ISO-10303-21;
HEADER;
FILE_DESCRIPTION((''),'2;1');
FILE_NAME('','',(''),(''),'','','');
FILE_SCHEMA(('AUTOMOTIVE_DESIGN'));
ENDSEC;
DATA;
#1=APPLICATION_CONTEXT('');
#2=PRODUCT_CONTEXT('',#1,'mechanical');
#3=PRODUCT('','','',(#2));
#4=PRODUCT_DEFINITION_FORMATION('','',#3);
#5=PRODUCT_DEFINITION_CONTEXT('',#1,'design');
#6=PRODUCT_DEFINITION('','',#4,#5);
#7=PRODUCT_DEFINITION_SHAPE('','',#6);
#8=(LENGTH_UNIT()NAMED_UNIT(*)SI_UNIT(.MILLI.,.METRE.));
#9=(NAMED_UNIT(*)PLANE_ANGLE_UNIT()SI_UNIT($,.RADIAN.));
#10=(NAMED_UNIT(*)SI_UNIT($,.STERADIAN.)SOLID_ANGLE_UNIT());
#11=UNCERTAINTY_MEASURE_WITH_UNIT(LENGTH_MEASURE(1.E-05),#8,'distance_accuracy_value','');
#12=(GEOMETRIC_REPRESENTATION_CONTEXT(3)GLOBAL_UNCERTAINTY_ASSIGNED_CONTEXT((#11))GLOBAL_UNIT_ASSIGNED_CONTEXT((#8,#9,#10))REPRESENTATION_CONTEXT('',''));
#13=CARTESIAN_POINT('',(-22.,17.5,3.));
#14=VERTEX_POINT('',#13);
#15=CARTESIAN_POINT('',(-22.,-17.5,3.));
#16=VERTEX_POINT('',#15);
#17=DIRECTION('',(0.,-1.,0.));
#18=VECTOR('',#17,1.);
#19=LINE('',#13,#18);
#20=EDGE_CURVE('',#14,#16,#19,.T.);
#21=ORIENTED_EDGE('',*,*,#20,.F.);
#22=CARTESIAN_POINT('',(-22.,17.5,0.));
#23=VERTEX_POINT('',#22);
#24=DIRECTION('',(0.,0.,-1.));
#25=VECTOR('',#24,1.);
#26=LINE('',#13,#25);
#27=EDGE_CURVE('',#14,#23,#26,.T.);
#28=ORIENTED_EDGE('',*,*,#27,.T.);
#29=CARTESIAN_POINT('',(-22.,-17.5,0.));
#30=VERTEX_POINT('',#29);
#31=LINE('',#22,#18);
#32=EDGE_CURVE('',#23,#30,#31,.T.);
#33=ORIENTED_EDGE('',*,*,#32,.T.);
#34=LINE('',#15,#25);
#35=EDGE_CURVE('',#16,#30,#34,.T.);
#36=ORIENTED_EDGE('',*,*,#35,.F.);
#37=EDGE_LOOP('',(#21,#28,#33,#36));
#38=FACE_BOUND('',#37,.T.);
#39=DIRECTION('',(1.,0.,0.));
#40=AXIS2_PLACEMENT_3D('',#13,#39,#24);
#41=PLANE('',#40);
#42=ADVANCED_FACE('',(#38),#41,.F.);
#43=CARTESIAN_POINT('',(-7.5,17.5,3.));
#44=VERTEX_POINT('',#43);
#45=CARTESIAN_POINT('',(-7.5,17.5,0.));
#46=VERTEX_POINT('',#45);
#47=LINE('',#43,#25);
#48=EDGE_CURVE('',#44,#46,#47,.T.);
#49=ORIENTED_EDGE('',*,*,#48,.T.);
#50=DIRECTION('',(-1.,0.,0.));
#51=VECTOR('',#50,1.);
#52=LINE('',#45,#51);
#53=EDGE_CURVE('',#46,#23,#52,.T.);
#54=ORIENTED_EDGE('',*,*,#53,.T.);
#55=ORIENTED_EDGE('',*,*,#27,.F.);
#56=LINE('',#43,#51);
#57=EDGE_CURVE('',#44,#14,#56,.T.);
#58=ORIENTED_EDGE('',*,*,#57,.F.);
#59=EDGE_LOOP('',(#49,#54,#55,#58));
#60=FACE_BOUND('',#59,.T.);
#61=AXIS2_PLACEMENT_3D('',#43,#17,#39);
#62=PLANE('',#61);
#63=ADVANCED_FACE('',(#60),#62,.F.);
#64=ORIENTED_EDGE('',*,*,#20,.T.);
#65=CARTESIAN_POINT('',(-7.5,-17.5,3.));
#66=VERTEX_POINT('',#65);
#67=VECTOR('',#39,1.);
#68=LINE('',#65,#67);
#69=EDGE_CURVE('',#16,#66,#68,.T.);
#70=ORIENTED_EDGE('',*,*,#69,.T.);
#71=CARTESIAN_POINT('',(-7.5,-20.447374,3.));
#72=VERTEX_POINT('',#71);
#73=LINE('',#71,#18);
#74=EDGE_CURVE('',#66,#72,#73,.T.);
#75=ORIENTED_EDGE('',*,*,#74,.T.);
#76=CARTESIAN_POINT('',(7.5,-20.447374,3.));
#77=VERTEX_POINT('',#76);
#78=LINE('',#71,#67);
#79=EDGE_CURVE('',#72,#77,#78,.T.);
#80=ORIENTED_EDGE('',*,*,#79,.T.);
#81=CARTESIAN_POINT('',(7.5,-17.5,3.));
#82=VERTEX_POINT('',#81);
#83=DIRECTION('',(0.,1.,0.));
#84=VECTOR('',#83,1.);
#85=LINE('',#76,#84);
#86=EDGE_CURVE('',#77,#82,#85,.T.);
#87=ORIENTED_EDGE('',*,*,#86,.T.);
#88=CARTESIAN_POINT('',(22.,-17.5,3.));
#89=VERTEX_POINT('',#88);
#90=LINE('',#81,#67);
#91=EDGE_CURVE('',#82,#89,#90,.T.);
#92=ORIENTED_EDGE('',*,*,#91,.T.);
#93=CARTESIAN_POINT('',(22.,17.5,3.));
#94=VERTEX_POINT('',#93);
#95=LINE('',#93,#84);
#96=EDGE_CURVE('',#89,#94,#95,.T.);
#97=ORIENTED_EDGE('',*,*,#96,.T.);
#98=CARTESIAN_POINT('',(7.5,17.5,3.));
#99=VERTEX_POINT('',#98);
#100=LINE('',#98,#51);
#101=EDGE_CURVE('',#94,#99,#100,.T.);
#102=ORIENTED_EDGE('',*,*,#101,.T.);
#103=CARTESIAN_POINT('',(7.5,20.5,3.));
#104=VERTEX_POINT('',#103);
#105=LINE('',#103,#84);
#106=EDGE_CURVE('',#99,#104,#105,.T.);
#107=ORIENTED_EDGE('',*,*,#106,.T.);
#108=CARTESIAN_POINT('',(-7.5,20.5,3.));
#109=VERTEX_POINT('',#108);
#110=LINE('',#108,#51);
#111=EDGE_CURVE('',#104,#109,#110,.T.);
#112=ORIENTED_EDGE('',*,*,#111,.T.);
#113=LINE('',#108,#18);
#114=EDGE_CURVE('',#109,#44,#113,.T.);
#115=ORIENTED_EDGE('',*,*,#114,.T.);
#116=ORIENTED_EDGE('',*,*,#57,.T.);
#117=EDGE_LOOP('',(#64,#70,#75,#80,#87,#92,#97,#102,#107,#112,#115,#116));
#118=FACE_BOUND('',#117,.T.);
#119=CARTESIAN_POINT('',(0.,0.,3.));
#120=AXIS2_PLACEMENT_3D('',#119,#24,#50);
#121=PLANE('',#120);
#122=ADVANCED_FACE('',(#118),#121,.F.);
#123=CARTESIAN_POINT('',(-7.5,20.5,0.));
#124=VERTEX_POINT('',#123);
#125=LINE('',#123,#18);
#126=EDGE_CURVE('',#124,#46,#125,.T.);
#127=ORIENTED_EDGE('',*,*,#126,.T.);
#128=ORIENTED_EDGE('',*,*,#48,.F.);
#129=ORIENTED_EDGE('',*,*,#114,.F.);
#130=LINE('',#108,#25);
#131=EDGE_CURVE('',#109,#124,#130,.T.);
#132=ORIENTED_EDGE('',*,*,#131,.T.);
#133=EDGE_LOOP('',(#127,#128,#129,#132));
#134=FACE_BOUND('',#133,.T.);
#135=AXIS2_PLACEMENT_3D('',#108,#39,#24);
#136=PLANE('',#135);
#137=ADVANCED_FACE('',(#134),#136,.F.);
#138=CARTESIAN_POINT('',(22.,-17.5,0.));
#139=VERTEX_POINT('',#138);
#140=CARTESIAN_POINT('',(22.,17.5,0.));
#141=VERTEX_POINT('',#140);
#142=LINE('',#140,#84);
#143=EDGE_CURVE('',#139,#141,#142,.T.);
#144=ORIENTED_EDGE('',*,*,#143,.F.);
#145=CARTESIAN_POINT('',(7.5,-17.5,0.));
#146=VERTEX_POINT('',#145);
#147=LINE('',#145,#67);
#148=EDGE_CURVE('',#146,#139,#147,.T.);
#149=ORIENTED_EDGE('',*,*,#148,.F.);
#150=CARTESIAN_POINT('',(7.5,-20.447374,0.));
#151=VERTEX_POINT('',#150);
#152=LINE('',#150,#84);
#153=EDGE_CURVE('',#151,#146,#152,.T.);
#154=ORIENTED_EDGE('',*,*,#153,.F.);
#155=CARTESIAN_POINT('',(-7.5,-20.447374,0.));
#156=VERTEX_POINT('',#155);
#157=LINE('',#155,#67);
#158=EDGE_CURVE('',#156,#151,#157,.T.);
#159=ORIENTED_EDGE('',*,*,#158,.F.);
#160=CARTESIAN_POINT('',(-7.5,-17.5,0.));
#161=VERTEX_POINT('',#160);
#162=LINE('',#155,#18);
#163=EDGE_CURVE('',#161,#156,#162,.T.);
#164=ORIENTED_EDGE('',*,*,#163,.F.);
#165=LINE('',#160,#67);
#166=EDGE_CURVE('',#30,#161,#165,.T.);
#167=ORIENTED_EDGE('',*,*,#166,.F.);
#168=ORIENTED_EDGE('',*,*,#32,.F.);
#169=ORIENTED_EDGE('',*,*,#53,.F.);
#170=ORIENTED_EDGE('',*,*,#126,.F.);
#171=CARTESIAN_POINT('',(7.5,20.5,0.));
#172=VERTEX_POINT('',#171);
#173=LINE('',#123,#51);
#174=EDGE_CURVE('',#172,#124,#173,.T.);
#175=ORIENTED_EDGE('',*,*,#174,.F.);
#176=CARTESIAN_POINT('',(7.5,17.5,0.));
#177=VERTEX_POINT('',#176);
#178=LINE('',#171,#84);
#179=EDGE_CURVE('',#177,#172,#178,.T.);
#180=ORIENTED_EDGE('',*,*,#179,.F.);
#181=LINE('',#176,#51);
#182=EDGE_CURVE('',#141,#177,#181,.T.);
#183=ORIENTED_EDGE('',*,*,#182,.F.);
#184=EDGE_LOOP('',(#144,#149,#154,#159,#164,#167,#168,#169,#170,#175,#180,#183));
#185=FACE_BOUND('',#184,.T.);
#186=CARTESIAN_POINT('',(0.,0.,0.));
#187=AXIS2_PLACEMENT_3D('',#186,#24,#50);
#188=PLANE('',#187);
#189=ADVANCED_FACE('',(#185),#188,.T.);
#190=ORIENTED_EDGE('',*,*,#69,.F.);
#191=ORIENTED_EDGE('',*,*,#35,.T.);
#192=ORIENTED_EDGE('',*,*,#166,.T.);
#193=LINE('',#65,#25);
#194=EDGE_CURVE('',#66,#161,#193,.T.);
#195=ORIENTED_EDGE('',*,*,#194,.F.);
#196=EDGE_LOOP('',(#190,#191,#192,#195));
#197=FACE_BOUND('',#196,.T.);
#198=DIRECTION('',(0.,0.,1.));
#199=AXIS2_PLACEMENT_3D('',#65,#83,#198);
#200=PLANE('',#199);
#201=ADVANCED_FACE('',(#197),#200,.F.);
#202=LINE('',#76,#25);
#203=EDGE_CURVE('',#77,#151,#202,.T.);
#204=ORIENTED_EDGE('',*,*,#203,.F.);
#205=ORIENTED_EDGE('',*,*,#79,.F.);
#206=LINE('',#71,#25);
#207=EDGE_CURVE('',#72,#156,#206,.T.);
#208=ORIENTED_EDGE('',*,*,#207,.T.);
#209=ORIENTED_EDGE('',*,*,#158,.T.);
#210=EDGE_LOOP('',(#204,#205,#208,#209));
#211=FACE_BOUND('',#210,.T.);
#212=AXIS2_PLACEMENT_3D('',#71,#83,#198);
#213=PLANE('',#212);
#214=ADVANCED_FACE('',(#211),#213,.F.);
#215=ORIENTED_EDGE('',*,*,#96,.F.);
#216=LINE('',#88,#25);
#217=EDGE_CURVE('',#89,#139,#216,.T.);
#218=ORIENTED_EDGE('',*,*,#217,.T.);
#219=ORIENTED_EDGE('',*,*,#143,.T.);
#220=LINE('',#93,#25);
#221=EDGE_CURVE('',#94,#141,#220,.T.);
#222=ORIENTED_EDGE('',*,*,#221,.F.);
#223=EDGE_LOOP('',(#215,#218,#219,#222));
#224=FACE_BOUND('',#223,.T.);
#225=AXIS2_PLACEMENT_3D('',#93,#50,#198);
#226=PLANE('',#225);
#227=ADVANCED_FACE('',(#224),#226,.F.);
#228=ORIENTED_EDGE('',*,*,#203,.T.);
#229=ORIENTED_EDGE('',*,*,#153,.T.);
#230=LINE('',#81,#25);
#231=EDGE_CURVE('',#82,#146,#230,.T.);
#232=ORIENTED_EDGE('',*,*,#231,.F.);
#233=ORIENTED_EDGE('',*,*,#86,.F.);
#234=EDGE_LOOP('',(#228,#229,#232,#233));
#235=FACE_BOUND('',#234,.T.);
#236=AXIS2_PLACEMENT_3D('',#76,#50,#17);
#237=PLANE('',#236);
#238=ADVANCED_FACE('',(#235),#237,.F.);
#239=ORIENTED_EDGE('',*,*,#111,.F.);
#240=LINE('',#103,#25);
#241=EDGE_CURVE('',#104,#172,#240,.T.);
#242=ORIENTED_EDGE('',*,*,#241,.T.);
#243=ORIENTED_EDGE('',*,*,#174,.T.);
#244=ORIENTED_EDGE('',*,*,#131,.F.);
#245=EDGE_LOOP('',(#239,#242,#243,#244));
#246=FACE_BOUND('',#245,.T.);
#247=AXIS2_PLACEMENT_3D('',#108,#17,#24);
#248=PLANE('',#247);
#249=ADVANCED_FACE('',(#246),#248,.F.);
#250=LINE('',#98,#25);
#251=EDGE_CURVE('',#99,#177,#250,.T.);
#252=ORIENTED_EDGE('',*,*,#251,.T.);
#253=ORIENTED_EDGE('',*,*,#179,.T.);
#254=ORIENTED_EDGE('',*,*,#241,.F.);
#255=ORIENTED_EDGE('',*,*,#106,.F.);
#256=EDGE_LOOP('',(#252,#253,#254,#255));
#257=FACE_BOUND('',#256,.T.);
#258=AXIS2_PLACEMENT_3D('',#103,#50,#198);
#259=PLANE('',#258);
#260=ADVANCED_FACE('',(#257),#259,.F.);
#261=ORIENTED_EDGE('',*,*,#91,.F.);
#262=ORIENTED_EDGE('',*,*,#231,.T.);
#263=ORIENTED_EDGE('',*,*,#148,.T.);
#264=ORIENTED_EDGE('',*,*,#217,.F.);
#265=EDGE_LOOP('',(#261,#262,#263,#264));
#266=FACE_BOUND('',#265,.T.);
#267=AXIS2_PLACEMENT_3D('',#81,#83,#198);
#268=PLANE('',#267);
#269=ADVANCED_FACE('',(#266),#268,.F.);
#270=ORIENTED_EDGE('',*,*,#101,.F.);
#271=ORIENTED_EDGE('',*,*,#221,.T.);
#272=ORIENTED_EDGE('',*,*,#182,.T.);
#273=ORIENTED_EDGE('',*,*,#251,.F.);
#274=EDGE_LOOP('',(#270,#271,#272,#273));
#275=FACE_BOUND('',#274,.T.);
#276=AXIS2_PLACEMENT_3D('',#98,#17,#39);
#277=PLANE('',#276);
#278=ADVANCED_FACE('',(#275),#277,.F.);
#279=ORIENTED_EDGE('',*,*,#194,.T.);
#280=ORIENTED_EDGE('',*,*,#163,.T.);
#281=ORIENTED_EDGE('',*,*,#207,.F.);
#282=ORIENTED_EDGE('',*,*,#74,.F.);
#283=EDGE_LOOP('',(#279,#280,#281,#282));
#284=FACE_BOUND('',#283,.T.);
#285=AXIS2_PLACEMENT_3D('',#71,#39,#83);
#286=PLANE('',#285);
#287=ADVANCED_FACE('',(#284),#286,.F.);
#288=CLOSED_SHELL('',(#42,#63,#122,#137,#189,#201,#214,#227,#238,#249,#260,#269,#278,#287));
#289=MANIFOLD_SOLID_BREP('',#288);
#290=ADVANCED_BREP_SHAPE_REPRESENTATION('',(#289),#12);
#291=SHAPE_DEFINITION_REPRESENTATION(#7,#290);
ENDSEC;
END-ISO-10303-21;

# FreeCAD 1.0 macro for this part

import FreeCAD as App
import Part
import Sketcher


def add_polygon(sketch, points):
    """Adds a closed chain of lines whose ends are joined by coincident constraints."""
    first, n = sketch.GeometryCount, len(points)
    for a, b in zip(points, points[1:] + points[:1]):
        sketch.addGeometry(Part.LineSegment(App.Vector(*a, 0), App.Vector(*b, 0)), False)
    for i in range(n):
        sketch.addConstraint(Sketcher.Constraint("Coincident", first + i, 2, first + (i + 1) % n, 1))

doc = App.newDocument("Part")
params = doc.addObject("Spreadsheet::Sheet", "Params")
for row, (alias, value) in enumerate([
    ("sketch1_width", "15 mm"),
    ("sketch1_height", "3 mm"),
    ("sketch1_height2", "35 mm"),
    ("sketch1_width2", "14.5 mm"),
    ("pad1_length", "3 mm"),
], start=1):
    params.set(f"A{row}", alias)
    params.set(f"B{row}", "=" + value)
    params.setAlias(f"B{row}", alias)

body = doc.addObject("PartDesign::Body", "Body")

# Sketch on XY plane
sketch1 = body.newObject("Sketcher::SketchObject", "Sketch")
sketch1.AttachmentSupport = (doc.getObject("XY_Plane"), [""])
sketch1.MapMode = "FlatFace"
add_polygon(sketch1, [(7.5, 20.5), (-7.5, 20.5), (-7.5, 17.5), (-22, 17.5), (-22, -17.5), (-7.5, -17.5), (-7.5, -20.4), (7.5, -20.4), (7.5, -17.5), (22, -17.5), (22, 17.5), (7.5, 17.5)])  # lines 0-11
sketch1.addConstraint(Sketcher.Constraint("Horizontal", 0))
sketch1.addConstraint(Sketcher.Constraint("Vertical", 1))
sketch1.addConstraint(Sketcher.Constraint("Horizontal", 2))
sketch1.addConstraint(Sketcher.Constraint("Vertical", 3))
sketch1.addConstraint(Sketcher.Constraint("Horizontal", 4))
sketch1.addConstraint(Sketcher.Constraint("Vertical", 5))
sketch1.addConstraint(Sketcher.Constraint("Horizontal", 6))
sketch1.addConstraint(Sketcher.Constraint("Vertical", 7))
sketch1.addConstraint(Sketcher.Constraint("Horizontal", 8))
sketch1.addConstraint(Sketcher.Constraint("Vertical", 9))
sketch1.addConstraint(Sketcher.Constraint("Horizontal", 10))
sketch1.addConstraint(Sketcher.Constraint("Vertical", 11))
sketch1.addConstraint(Sketcher.Constraint("Symmetric", 1, 2, 7, 2, -1, 1))
sketch1.addConstraint(Sketcher.Constraint("Symmetric", 3, 2, 9, 2, -1, 1))
sketch1.addConstraint(Sketcher.Constraint("Symmetric", 4, 2, 7, 2, -2))
sketch1.addConstraint(Sketcher.Constraint("Vertical", 7, 2, 10, 2))
sketch1.addConstraint(Sketcher.Constraint("DistanceX", 0, 2, 0, 1, 15.0))
sketch1.addConstraint(Sketcher.Constraint("DistanceY", 1, 2, 1, 1, 3.0))
sketch1.addConstraint(Sketcher.Constraint("DistanceY", 3, 2, 3, 1, 35.0))
sketch1.addConstraint(Sketcher.Constraint("DistanceX", 2, 2, 2, 1, 14.5))
sketch1.addConstraint(Sketcher.Constraint("DistanceY", 5, 2, 5, 1, 2.947374))
sketch1.setExpression("Constraints[28]", "Params.sketch1_width")
sketch1.setExpression("Constraints[29]", "Params.sketch1_height")
sketch1.setExpression("Constraints[30]", "Params.sketch1_height2")
sketch1.setExpression("Constraints[31]", "Params.sketch1_width2")
pad1 = body.newObject("PartDesign::Pad", "Pad")
pad1.Profile = sketch1
pad1.setExpression("Length", "Params.pad1_length")

doc.recompute()
